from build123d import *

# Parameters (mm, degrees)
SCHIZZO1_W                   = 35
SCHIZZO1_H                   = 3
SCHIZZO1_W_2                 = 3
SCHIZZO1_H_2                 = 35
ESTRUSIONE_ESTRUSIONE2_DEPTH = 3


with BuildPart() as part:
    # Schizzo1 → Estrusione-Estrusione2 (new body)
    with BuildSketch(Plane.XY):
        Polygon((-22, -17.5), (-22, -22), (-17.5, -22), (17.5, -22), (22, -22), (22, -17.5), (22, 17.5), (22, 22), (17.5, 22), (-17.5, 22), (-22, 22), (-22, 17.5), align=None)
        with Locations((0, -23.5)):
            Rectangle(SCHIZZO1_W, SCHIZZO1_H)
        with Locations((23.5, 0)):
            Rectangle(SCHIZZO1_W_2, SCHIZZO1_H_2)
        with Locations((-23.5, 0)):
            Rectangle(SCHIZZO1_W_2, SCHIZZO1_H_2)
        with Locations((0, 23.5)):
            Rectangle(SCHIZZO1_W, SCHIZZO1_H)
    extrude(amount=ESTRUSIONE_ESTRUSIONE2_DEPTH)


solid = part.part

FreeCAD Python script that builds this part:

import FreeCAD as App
import Part
import Sketcher

V = App.Vector

doc = App.newDocument("Part")
body = doc.addObject("PartDesign::Body", "Body")

sketch1 = body.newObject("Sketcher::SketchObject", "Sketch")
sketch1.AttachmentSupport = (doc.getObject("XY_Plane"), [""])
sketch1.MapMode = "FlatFace"
sketch1.addGeometry(Part.LineSegment(V(-22, -22, 0), V(-17.5, -22, 0)), False)
sketch1.addGeometry(Part.LineSegment(V(-17.5, -22, 0), V(-17.5, -25, 0)), False)
sketch1.addGeometry(Part.LineSegment(V(-17.5, -25, 0), V(17.5, -25, 0)), False)
sketch1.addGeometry(Part.LineSegment(V(17.5, -25, 0), V(17.5, -22, 0)), False)
sketch1.addGeometry(Part.LineSegment(V(17.5, -22, 0), V(22, -22, 0)), False)
sketch1.addGeometry(Part.LineSegment(V(22, -22, 0), V(22, -17.5, 0)), False)
sketch1.addGeometry(Part.LineSegment(V(22, -17.5, 0), V(25, -17.5, 0)), False)
sketch1.addGeometry(Part.LineSegment(V(25, -17.5, 0), V(25, 17.5, 0)), False)
sketch1.addGeometry(Part.LineSegment(V(25, 17.5, 0), V(22, 17.5, 0)), False)
sketch1.addGeometry(Part.LineSegment(V(22, 17.5, 0), V(22, 22, 0)), False)
sketch1.addGeometry(Part.LineSegment(V(22, 22, 0), V(17.5, 22, 0)), False)
sketch1.addGeometry(Part.LineSegment(V(17.5, 22, 0), V(17.5, 25, 0)), False)
sketch1.addGeometry(Part.LineSegment(V(17.5, 25, 0), V(-17.5, 25, 0)), False)
sketch1.addGeometry(Part.LineSegment(V(-17.5, 25, 0), V(-17.5, 22, 0)), False)
sketch1.addGeometry(Part.LineSegment(V(-17.5, 22, 0), V(-22, 22, 0)), False)
sketch1.addGeometry(Part.LineSegment(V(-22, 22, 0), V(-22, 17.5, 0)), False)
sketch1.addGeometry(Part.LineSegment(V(-22, 17.5, 0), V(-25, 17.5, 0)), False)
sketch1.addGeometry(Part.LineSegment(V(-25, 17.5, 0), V(-25, -17.5, 0)), False)
sketch1.addGeometry(Part.LineSegment(V(-25, -17.5, 0), V(-22, -17.5, 0)), False)
sketch1.addGeometry(Part.LineSegment(V(-22, -17.5, 0), V(-22, -22, 0)), False)
sketch1.addConstraint(Sketcher.Constraint("Coincident", 0, 2, 1, 1))
sketch1.addConstraint(Sketcher.Constraint("Coincident", 1, 2, 2, 1))
sketch1.addConstraint(Sketcher.Constraint("Coincident", 2, 2, 3, 1))
sketch1.addConstraint(Sketcher.Constraint("Coincident", 3, 2, 4, 1))
sketch1.addConstraint(Sketcher.Constraint("Coincident", 4, 2, 5, 1))
sketch1.addConstraint(Sketcher.Constraint("Coincident", 5, 2, 6, 1))
sketch1.addConstraint(Sketcher.Constraint("Coincident", 6, 2, 7, 1))
sketch1.addConstraint(Sketcher.Constraint("Coincident", 7, 2, 8, 1))
sketch1.addConstraint(Sketcher.Constraint("Coincident", 8, 2, 9, 1))
sketch1.addConstraint(Sketcher.Constraint("Coincident", 9, 2, 10, 1))
sketch1.addConstraint(Sketcher.Constraint("Coincident", 10, 2, 11, 1))
sketch1.addConstraint(Sketcher.Constraint("Coincident", 11, 2, 12, 1))
sketch1.addConstraint(Sketcher.Constraint("Coincident", 12, 2, 13, 1))
sketch1.addConstraint(Sketcher.Constraint("Coincident", 13, 2, 14, 1))
sketch1.addConstraint(Sketcher.Constraint("Coincident", 14, 2, 15, 1))
sketch1.addConstraint(Sketcher.Constraint("Coincident", 15, 2, 16, 1))
sketch1.addConstraint(Sketcher.Constraint("Coincident", 16, 2, 17, 1))
sketch1.addConstraint(Sketcher.Constraint("Coincident", 17, 2, 18, 1))
sketch1.addConstraint(Sketcher.Constraint("Coincident", 18, 2, 19, 1))
sketch1.addConstraint(Sketcher.Constraint("Coincident", 19, 2, 0, 1))
sketch1.addConstraint(Sketcher.Constraint("Horizontal", 0))
sketch1.addConstraint(Sketcher.Constraint("Vertical", 1))
sketch1.addConstraint(Sketcher.Constraint("Horizontal", 2))
sketch1.addConstraint(Sketcher.Constraint("Vertical", 3))
sketch1.addConstraint(Sketcher.Constraint("Horizontal", 4))
sketch1.addConstraint(Sketcher.Constraint("Vertical", 5))
sketch1.addConstraint(Sketcher.Constraint("Horizontal", 6))
sketch1.addConstraint(Sketcher.Constraint("Vertical", 7))
sketch1.addConstraint(Sketcher.Constraint("Horizontal", 8))
sketch1.addConstraint(Sketcher.Constraint("Vertical", 9))
sketch1.addConstraint(Sketcher.Constraint("Horizontal", 10))
sketch1.addConstraint(Sketcher.Constraint("Vertical", 11))
sketch1.addConstraint(Sketcher.Constraint("Horizontal", 12))
sketch1.addConstraint(Sketcher.Constraint("Vertical", 13))
sketch1.addConstraint(Sketcher.Constraint("Horizontal", 14))
sketch1.addConstraint(Sketcher.Constraint("Vertical", 15))
sketch1.addConstraint(Sketcher.Constraint("Horizontal", 16))
sketch1.addConstraint(Sketcher.Constraint("Vertical", 17))
sketch1.addConstraint(Sketcher.Constraint("Horizontal", 18))
sketch1.addConstraint(Sketcher.Constraint("Vertical", 19))
sketch1.addConstraint(Sketcher.Constraint("Symmetric", 0, 2, 10, 2, -1, 1))
sketch1.addConstraint(Sketcher.Constraint("Symmetric", 2, 2, 12, 2, -1, 1))
sketch1.addConstraint(Sketcher.Constraint("Symmetric", 4, 2, 14, 2, -1, 1))
sketch1.addConstraint(Sketcher.Constraint("Symmetric", 6, 2, 16, 2, -1, 1))
sketch1.addConstraint(Sketcher.Constraint("Symmetric", 8, 2, 18, 2, -1, 1))
sketch1.addConstraint(Sketcher.Constraint("Symmetric", 0, 2, 3, 2, -2))
sketch1.addConstraint(Sketcher.Constraint("Symmetric", 8, 2, 15, 2, -2))
sketch1.addConstraint(Sketcher.Constraint("Equal", 18, 1))
sketch1.addConstraint(Sketcher.Constraint("Equal", 14, 5))
sketch1.addConstraint(Sketcher.Constraint("Equal", 12, 7))
sketch1.addConstraint(Sketcher.Constraint("DistanceX", 2, 1, 2, 2, 35.0))
sketch1.addConstraint(Sketcher.Constraint("DistanceX", 6, 1, 6, 2, 3.0))
sketch1.addConstraint(Sketcher.Constraint("DistanceX", 0, 1, 0, 2, 4.5))
pad1 = body.newObject("PartDesign::Pad", "Pad")
pad1.Profile = sketch1
pad1.Length = 3

doc.recompute()
